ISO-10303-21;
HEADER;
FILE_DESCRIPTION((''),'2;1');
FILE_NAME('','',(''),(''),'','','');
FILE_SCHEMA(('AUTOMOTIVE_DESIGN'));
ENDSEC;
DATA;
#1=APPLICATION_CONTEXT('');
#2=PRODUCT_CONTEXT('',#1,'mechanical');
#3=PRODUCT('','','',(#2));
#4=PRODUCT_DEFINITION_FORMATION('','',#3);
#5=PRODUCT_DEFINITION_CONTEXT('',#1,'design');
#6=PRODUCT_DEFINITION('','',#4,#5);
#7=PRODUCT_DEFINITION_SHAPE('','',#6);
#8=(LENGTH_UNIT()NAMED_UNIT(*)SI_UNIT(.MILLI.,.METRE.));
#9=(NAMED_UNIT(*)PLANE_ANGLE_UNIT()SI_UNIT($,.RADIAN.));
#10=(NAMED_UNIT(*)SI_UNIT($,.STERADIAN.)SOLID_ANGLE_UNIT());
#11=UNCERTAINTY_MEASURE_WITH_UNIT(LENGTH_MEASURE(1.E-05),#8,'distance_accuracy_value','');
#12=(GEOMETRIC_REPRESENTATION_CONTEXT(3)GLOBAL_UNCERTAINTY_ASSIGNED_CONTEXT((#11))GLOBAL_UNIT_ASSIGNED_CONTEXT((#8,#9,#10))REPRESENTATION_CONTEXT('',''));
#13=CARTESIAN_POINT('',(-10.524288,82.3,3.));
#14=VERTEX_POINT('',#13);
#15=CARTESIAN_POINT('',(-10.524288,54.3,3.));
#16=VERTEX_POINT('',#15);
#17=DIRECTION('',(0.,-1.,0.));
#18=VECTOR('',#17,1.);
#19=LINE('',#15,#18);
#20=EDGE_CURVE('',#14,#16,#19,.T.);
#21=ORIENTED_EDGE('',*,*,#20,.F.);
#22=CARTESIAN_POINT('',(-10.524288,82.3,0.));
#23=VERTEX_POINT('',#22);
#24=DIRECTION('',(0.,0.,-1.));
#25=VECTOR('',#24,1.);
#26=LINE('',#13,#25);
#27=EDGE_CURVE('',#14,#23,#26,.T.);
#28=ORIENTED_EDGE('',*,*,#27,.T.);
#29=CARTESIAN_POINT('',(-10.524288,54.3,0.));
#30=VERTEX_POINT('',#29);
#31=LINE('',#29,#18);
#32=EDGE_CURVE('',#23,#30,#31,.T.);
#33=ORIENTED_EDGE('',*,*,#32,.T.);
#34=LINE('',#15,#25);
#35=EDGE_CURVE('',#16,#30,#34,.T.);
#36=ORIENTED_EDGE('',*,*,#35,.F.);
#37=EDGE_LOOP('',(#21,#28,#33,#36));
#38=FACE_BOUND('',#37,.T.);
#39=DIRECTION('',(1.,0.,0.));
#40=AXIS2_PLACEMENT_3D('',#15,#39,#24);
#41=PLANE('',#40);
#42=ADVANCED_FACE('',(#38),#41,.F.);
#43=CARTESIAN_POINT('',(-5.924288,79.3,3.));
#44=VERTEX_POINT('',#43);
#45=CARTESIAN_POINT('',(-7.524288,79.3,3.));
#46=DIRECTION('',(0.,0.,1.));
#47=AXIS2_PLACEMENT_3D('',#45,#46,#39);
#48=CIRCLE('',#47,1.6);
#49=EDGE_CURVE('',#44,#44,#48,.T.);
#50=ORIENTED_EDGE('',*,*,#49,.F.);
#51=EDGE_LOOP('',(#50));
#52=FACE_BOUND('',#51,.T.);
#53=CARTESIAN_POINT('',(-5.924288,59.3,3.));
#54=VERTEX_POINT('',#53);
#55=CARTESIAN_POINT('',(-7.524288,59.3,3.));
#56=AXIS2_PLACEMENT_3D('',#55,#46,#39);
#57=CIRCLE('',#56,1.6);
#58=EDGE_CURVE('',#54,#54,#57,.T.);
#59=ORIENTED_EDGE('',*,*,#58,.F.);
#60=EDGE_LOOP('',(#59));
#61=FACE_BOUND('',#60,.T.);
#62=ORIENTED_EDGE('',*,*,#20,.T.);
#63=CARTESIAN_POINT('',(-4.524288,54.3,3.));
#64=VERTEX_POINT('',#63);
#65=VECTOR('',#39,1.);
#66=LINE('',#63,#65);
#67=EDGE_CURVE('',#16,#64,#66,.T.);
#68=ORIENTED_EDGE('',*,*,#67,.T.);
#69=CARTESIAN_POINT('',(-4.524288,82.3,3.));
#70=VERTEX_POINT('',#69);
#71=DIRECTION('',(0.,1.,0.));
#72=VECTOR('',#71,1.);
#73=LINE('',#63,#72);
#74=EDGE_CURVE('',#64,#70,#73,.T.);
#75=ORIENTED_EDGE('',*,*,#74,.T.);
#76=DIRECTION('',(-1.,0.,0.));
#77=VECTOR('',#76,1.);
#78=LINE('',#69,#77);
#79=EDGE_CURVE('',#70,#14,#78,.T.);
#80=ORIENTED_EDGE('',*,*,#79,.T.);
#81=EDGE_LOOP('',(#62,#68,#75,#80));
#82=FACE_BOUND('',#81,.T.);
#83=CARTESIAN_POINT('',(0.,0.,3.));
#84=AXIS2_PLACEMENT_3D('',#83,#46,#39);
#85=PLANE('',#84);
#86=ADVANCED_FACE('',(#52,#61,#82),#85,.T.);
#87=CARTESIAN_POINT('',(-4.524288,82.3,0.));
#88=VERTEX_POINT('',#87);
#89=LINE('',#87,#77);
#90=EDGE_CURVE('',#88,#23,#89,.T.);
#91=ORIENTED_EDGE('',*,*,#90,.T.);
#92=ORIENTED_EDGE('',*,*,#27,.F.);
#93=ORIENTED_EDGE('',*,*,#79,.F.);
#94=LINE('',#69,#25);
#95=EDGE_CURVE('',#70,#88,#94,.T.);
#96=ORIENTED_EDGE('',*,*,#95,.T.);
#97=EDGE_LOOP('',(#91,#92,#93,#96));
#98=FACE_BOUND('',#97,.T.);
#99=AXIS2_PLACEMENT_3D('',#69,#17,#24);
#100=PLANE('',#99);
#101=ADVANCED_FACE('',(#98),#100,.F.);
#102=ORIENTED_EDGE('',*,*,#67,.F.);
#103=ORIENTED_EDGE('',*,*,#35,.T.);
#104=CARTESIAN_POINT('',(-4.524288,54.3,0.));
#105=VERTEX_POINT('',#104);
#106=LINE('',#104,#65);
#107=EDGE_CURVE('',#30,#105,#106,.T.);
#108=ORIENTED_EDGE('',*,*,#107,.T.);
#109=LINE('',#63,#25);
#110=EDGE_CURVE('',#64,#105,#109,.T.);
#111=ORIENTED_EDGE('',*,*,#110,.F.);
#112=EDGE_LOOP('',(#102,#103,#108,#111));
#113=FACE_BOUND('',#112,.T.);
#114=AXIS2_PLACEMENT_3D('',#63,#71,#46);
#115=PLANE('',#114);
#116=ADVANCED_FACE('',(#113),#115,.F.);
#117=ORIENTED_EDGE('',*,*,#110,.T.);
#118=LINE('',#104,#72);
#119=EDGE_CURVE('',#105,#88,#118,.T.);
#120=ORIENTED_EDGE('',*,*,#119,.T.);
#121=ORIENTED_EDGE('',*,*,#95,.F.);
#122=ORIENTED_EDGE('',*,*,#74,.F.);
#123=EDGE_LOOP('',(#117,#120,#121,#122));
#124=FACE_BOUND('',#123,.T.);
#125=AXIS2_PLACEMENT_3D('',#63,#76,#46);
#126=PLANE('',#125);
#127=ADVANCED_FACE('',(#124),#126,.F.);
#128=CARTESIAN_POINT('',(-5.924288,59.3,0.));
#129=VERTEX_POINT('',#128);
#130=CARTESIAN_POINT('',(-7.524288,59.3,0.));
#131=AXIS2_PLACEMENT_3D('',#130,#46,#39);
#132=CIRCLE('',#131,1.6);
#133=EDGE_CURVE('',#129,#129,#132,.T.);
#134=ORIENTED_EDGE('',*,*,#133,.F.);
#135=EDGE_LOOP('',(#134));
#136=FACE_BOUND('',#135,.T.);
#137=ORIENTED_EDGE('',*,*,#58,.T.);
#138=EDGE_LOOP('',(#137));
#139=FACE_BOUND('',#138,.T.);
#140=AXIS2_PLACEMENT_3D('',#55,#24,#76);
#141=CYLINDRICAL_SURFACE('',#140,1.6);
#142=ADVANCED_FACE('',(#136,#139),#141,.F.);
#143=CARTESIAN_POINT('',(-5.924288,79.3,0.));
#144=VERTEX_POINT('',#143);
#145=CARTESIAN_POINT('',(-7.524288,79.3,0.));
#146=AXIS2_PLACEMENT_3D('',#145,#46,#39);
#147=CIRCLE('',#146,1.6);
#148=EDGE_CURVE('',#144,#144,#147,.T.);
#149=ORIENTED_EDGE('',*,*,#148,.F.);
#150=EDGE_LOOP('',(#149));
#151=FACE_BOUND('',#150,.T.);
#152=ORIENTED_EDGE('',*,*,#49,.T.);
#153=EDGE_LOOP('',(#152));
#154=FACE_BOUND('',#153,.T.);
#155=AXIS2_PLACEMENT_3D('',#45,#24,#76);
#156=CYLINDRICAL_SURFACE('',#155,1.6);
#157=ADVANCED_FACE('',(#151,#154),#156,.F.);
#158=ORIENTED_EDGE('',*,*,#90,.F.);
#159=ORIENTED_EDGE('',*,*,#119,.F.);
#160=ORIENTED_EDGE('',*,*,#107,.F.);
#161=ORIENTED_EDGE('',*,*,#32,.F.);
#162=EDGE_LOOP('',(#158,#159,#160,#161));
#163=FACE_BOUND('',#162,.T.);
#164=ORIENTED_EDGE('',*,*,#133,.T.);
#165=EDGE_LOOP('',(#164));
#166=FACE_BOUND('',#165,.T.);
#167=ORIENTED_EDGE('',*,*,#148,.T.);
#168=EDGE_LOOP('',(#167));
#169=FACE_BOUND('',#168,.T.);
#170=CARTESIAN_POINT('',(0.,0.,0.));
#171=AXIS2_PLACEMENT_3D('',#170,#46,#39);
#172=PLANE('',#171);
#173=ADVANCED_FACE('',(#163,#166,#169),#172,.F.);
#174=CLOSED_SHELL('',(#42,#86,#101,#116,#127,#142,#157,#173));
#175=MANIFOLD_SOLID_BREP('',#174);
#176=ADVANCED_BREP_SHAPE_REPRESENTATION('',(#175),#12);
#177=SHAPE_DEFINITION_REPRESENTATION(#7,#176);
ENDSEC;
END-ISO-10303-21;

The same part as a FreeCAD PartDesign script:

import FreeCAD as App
import Part
import Sketcher
from FreeCAD import Vector
Q = App.Units.Quantity


def add_polygon(sketch, points):
    """Adds a closed chain of lines whose ends are joined by coincident constraints."""
    first, n = sketch.GeometryCount, len(points)
    for a, b in zip(points, points[1:] + points[:1]):
        sketch.addGeometry(Part.LineSegment(App.Vector(*a, 0), App.Vector(*b, 0)), False)
    for i in range(n):
        sketch.addConstraint(Sketcher.Constraint("Coincident", first + i, 2, first + (i + 1) % n, 1))

doc = App.newDocument("Part")
body = doc.addObject("PartDesign::Body", "Body")

# Sketch on XY plane
sketch1 = body.newObject("Sketcher::SketchObject", "Sketch")
sketch1.AttachmentSupport = (doc.getObject("XY_Plane"), [""])
sketch1.MapMode = "FlatFace"
add_polygon(sketch1, [(-10.5, 82.3), (-10.5, 54.3), (-4.5, 54.3), (-4.5, 82.3)])  # lines 0-3
sketch1.addGeometry(Part.Circle(Vector(-7.5, 59.3, 0), Vector(0, 0, 1), 1.6), False)  # 4
sketch1.addGeometry(Part.Circle(Vector(-7.5, 79.3, 0), Vector(0, 0, 1), 1.6), False)  # 5
sketch1.addConstraint(Sketcher.Constraint("Vertical", 0))
sketch1.addConstraint(Sketcher.Constraint("Horizontal", 1))
sketch1.addConstraint(Sketcher.Constraint("Vertical", 2))
sketch1.addConstraint(Sketcher.Constraint("Horizontal", 3))
sketch1.addConstraint(Sketcher.Constraint("Equal", 4, 5))
sketch1.addConstraint(Sketcher.Constraint("Vertical", 4, 3, 5, 3))
sketch1.addConstraint(Sketcher.Constraint("Diameter", 4, Q("3.2 mm")))
sketch1.addConstraint(Sketcher.Constraint("DistanceX", 1, 1, 1, 2, Q("6 mm")))
sketch1.addConstraint(Sketcher.Constraint("DistanceY", 0, 2, 0, 1, Q("28 mm")))
sketch1.addConstraint(Sketcher.Constraint("DistanceY", 4, 3, 5, 3, Q("20 mm")))
sketch1.addConstraint(Sketcher.Constraint("DistanceX", 0, 2, 4, 3, Q("3 mm")))
sketch1.addConstraint(Sketcher.Constraint("DistanceY", 0, 2, 4, 3, Q("5 mm")))
sketch1.addConstraint(Sketcher.Constraint("DistanceY", -1, 1, 4, 3, Q("59.3 mm")))
sketch1.addConstraint(Sketcher.Constraint("DistanceX", 4, 3, -1, 1, Q("7.524288 mm")))
pad1 = body.newObject("PartDesign::Pad", "Pad")
pad1.Profile = sketch1
pad1.Length = 3

doc.recompute()
